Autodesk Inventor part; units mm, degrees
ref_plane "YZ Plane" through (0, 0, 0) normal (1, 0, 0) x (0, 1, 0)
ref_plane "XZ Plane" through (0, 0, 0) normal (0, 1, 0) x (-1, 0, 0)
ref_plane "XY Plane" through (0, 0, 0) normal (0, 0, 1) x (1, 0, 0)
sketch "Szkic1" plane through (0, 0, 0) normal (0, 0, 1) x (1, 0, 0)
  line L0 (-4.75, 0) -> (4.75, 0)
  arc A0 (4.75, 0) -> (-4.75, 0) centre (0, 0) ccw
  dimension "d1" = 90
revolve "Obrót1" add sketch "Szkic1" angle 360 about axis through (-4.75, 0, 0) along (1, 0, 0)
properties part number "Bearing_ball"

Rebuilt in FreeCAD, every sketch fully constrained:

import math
import FreeCAD as App
import Part
import Sketcher
from FreeCAD import Vector
Q = App.Units.Quantity

doc = App.newDocument("Part")
body = doc.addObject("PartDesign::Body", "Body")

# Sketch on XY plane
sketch1 = body.newObject("Sketcher::SketchObject", "Sketch")
sketch1.AttachmentSupport = (doc.getObject("XY_Plane"), [""])
sketch1.MapMode = "FlatFace"
sketch1.addGeometry([
    Part.ArcOfCircle(Part.Circle(Vector(0, 0, 0), Vector(0, 0, 1), 4.8), math.radians(0), math.radians(180)),
    Part.LineSegment(Vector(-4.8, 0, 0), Vector(4.8, 0, 0)),
], False)
sketch1.addConstraint([
    Sketcher.Constraint("Coincident", 0, 1, 1, 2),
    Sketcher.Constraint("Coincident", 1, 1, 0, 2),
    Sketcher.Constraint("Horizontal", 1),
    Sketcher.Constraint("Coincident", 0, 3, -1, 1),
    Sketcher.Constraint("PointOnObject", 0, 1, -1),
    Sketcher.Constraint("Radius", 0, Q("4.75 mm")),
])
revolution = body.newObject("PartDesign::Revolution", "Revolution")
revolution.Profile = sketch1
revolution.ReferenceAxis = (sketch1, ["H_Axis"])
revolution.Angle = 360

doc.recompute()
